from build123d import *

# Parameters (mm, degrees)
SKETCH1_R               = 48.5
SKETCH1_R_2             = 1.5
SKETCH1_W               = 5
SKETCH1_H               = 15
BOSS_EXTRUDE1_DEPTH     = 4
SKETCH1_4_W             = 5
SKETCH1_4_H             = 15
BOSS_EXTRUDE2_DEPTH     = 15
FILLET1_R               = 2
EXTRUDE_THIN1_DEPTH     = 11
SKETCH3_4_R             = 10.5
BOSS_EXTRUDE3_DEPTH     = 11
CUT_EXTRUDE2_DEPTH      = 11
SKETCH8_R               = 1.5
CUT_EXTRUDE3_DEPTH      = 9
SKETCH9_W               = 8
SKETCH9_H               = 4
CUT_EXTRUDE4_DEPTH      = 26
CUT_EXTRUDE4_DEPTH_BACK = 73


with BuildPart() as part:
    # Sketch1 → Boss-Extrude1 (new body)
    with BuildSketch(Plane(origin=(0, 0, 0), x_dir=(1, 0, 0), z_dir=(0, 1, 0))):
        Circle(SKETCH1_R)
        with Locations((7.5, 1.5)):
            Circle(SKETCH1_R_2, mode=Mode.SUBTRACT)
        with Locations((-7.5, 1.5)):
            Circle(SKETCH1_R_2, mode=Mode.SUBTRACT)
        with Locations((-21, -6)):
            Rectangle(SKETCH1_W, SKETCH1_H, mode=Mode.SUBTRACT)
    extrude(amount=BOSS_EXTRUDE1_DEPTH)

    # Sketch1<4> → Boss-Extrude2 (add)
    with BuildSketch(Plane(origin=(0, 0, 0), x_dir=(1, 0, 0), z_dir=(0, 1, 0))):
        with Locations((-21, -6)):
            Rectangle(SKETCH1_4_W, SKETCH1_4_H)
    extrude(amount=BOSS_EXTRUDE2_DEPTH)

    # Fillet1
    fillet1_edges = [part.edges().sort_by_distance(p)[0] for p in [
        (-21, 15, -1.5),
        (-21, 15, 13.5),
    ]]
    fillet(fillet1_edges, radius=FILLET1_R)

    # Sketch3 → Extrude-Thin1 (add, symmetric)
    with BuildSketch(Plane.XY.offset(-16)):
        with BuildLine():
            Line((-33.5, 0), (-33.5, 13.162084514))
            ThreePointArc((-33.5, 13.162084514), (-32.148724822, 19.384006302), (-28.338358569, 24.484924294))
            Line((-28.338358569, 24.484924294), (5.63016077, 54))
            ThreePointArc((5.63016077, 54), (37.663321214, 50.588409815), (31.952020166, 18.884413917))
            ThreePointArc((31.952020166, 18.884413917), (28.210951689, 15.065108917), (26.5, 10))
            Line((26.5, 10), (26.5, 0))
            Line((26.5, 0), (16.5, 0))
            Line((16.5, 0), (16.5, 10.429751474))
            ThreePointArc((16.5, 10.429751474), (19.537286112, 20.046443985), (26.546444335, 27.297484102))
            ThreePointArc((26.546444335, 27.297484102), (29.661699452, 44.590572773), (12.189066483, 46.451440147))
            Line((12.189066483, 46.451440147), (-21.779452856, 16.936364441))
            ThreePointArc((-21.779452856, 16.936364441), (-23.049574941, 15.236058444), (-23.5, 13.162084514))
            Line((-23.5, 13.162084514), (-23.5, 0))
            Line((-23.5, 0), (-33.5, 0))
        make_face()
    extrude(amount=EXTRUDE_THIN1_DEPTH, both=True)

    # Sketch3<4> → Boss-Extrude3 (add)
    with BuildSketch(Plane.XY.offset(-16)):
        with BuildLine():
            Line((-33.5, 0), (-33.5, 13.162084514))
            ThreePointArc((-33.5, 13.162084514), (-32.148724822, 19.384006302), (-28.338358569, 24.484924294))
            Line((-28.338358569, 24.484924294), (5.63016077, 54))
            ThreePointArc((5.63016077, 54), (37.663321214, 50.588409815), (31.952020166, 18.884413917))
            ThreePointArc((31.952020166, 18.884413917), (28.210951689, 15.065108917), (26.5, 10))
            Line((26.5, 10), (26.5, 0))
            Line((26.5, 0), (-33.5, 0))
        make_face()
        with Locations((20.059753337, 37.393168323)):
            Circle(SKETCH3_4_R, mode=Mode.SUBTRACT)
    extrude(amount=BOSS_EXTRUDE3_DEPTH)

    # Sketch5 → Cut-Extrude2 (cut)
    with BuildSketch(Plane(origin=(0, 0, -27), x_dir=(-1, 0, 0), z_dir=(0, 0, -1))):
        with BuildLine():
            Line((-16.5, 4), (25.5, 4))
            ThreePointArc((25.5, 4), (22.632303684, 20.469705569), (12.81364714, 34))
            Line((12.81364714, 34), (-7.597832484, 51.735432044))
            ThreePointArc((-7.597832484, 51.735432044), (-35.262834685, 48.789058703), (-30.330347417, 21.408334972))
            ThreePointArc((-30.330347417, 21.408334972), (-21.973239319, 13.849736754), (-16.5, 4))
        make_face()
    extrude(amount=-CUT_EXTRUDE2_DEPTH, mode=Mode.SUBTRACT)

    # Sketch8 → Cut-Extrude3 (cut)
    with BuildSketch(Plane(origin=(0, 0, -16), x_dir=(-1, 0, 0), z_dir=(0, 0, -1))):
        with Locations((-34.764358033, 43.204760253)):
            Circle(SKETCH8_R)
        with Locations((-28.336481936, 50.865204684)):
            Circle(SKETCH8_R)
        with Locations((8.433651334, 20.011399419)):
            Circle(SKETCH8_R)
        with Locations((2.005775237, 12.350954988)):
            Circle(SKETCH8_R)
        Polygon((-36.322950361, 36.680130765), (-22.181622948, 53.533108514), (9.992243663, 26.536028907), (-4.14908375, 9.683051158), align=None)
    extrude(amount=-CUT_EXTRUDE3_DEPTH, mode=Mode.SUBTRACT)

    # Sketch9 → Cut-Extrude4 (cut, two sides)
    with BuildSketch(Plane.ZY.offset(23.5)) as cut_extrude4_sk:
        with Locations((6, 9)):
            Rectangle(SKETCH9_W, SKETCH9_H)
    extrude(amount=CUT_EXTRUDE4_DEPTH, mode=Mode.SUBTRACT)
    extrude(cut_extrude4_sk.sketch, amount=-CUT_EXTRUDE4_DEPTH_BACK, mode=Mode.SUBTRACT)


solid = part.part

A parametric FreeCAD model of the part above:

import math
import FreeCAD as App
import Part
import Sketcher

V = App.Vector
Q = App.Units.Quantity


def edges_at(feature, points):
    """Names of the edges that pass closest to the given points."""
    edges = feature.Shape.Edges
    near = lambda p: min(range(len(edges)), key=lambda i: edges[i].distToShape(Part.Vertex(*p))[0])
    return sorted({f"Edge{near(p) + 1}" for p in points})

doc = App.newDocument("Part")
params = doc.addObject("Spreadsheet::Sheet", "Params")
for row, (alias, value) in enumerate([
    ("sketch1_diameter", "97 mm"),
    ("sketch1_diameter2", "3 mm"),
    ("sketch1_width", "5 mm"),
    ("sketch1_height", "15 mm"),
    ("pad1_length", "4 mm"),
    ("sketch2_width", "5 mm"),
    ("sketch2_height", "15 mm"),
    ("pad2_length", "15 mm"),
    ("fillet_radius", "2 mm"),
    ("sketch3_radius", "5 mm"),
    ("sketch3_radius2", "12 mm"),
    ("sketch3_radius3", "22 mm"),
    ("sketch3_length", "45 mm"),
    ("pad3_length", "22 mm"),
    ("sketch4_diameter", "21 mm"),
    ("sketch4_radius", "12 mm"),
    ("sketch4_radius2", "22 mm"),
    ("sketch4_radius3", "15 mm"),
    ("sketch4_width", "60 mm"),
    ("pad4_length", "11 mm"),
    ("sketch5_radius", "19 mm"),
    ("sketch5_width", "42 mm"),
    ("pocket1_length", "11 mm"),
    ("sketch6_diameter", "3 mm"),
    ("sketch6_length", "22 mm"),
    ("sketch6_length2", "42 mm"),
    ("pocket2_length", "9 mm"),
    ("sketch7_width", "4 mm"),
    ("sketch7_height", "8 mm"),
], start=1):
    params.set(f"A{row}", alias)
    params.set(f"B{row}", "=" + value)
    params.setAlias(f"B{row}", alias)

body = doc.addObject("PartDesign::Body", "Body")

# Sketch on XZ plane
sketch1 = doc.addObject("Sketcher::SketchObject", "Sketch")
body.addObject(sketch1)
sketch1.AttachmentSupport = (doc.XZ_Plane, [""])
sketch1.MapMode = "FlatFace"
sketch1.addGeometry([
    Part.Circle(V(0, 0, 0), V(0, 0, 1), 48.5),  # 0
    Part.LineSegment(V(-18.5, 13.5, 0), V(-23.5, 13.5, 0)),  # 1
    Part.LineSegment(V(-23.5, 13.5, 0), V(-23.5, -1.5, 0)),  # 2
    Part.LineSegment(V(-23.5, -1.5, 0), V(-18.5, -1.5, 0)),  # 3
    Part.LineSegment(V(-18.5, -1.5, 0), V(-18.5, 13.5, 0)),  # 4
    Part.Circle(V(-7.5, -1.5, 0), V(0, 0, 1), 1.5),  # 5
    Part.Circle(V(7.5, -1.5, 0), V(0, 0, 1), 1.5),  # 6
], False)
sketch1.addConstraint([
    Sketcher.Constraint("Coincident", 1, 2, 2, 1),
    Sketcher.Constraint("Coincident", 2, 2, 3, 1),
    Sketcher.Constraint("Coincident", 3, 2, 4, 1),
    Sketcher.Constraint("Coincident", 4, 2, 1, 1),
    Sketcher.Constraint("Horizontal", 1),
    Sketcher.Constraint("Vertical", 2),
    Sketcher.Constraint("Horizontal", 3),
    Sketcher.Constraint("Vertical", 4),
    Sketcher.Constraint("Coincident", 0, 3, -1, 1),
    Sketcher.Constraint("Equal", 5, 6),
    Sketcher.Constraint("Symmetric", 5, 3, 6, 3, -2),
    Sketcher.Constraint("Horizontal", 6, 3, 2, 2),
    Sketcher.Constraint("Diameter", 0, Q("97 mm")),
    Sketcher.Constraint("Diameter", 5, Q("3 mm")),
    Sketcher.Constraint("DistanceX", 1, 2, 1, 1, Q("5 mm")),
    Sketcher.Constraint("DistanceY", 2, 2, 2, 1, Q("15 mm")),
    Sketcher.Constraint("DistanceX", 5, 3, 6, 3, Q("15 mm")),
    Sketcher.Constraint("DistanceX", 1, 2, 5, 3, Q("16 mm")),
    Sketcher.Constraint("DistanceY", 5, 3, -1, 1, Q("1.5 mm")),
])
sketch1.setExpression("Constraints[12]", "Params.sketch1_diameter")
sketch1.setExpression("Constraints[13]", "Params.sketch1_diameter2")
sketch1.setExpression("Constraints[14]", "Params.sketch1_width")
sketch1.setExpression("Constraints[15]", "Params.sketch1_height")
pad1 = doc.addObject("PartDesign::Pad", "Pad")
body.addObject(pad1)
pad1.Profile = sketch1
pad1.setExpression("Length", "Params.pad1_length")
pad1.Reversed = True

# Sketch on XZ plane
sketch2 = doc.addObject("Sketcher::SketchObject", "Sketch001")
body.addObject(sketch2)
sketch2.AttachmentSupport = (doc.XZ_Plane, [""])
sketch2.MapMode = "FlatFace"
sketch2.addGeometry([
    Part.LineSegment(V(-24, -2, 0), V(-24, 14, 0)),
    Part.LineSegment(V(-24, 14, 0), V(-18, 14, 0)),
    Part.LineSegment(V(-18, 14, 0), V(-18, -2, 0)),
    Part.LineSegment(V(-18, -2, 0), V(-24, -2, 0)),
], False)
sketch2.addConstraint([
    Sketcher.Constraint("Coincident", 0, 2, 1, 1),
    Sketcher.Constraint("Coincident", 1, 2, 2, 1),
    Sketcher.Constraint("Coincident", 2, 2, 3, 1),
    Sketcher.Constraint("Coincident", 3, 2, 0, 1),
    Sketcher.Constraint("Vertical", 0),
    Sketcher.Constraint("Horizontal", 1),
    Sketcher.Constraint("Vertical", 2),
    Sketcher.Constraint("Horizontal", 3),
    Sketcher.Constraint("DistanceX", 1, 1, 1, 2, Q("5 mm")),
    Sketcher.Constraint("DistanceY", 0, 1, 0, 2, Q("15 mm")),
    Sketcher.Constraint("DistanceX", 0, 2, -1, 1, Q("23.5 mm")),
    Sketcher.Constraint("DistanceY", -1, 1, 0, 2, Q("13.5 mm")),
])
sketch2.setExpression("Constraints[8]", "Params.sketch2_width")
sketch2.setExpression("Constraints[9]", "Params.sketch2_height")
pad2 = doc.addObject("PartDesign::Pad", "Pad001")
body.addObject(pad2)
pad2.Profile = sketch2
pad2.setExpression("Length", "Params.pad2_length")
pad2.Reversed = True
doc.recompute()

fillet = doc.addObject("PartDesign::Fillet", "Fillet")
body.addObject(fillet)
fillet.Base = (pad2, edges_at(pad2, [(-21, 15, -1.5), (-21, 15, 13.5)]))
fillet.setExpression("Radius", "Params.fillet_radius")

# Sketch on XY plane
sketch3 = doc.addObject("Sketcher::SketchObject", "Sketch002")
body.addObject(sketch3)
sketch3.AttachmentSupport = (doc.XY_Plane, [""])
sketch3.MapMode = "FlatFace"
sketch3.AttachmentOffset = App.Placement(V(0, 0, -16), App.Rotation())
sketch3.addGeometry([
    Part.LineSegment(V(-33.5, 13.2, 0), V(-33.5, 0, 0)),  # 0
    Part.LineSegment(V(-33.5, 0, 0), V(-23.5, 0, 0)),  # 1
    Part.LineSegment(V(-23.5, 0, 0), V(-23.5, 13.2, 0)),  # 2
    Part.ArcOfCircle(Part.Circle(V(-18.5, 13.2, 0), V(0, 0, 1), 5), math.radians(131), math.radians(180)),  # 3
    Part.LineSegment(V(-21.8, 16.9, 0), V(12.2, 46.5, 0)),  # 4
    Part.ArcOfCircle(Part.Circle(V(20.1, 37.4, 0), V(0, 0, 1), 12), math.radians(-57), math.radians(131)),  # 5
    Part.ArcOfCircle(Part.Circle(V(38.4, 8.8, 0), V(0, 0, 1), 22), math.radians(123), math.radians(176)),  # 6
    Part.LineSegment(V(16.5, 10.4, 0), V(16.5, 0, 0)),  # 7
    Part.LineSegment(V(16.5, 0, 0), V(26.5, 0, 0)),  # 8
    Part.LineSegment(V(26.5, 0, 0), V(26.5, 10, 0)),  # 9
    Part.ArcOfCircle(Part.Circle(V(38.4, 8.8, 0), V(0, 0, 1), 12), math.radians(123), math.radians(174)),  # 10
    Part.ArcOfCircle(Part.Circle(V(20.1, 37.4, 0), V(0, 0, 1), 22), math.radians(-57), math.radians(131)),  # 11
    Part.LineSegment(V(5.6, 54, 0), V(-28.3, 24.5, 0)),  # 12
    Part.ArcOfCircle(Part.Circle(V(-18.5, 13.2, 0), V(0, 0, 1), 15), math.radians(131), math.radians(180)),  # 13
], False)
sketch3.addConstraint([
    Sketcher.Constraint("Coincident", 0, 2, 1, 1),
    Sketcher.Constraint("Coincident", 1, 2, 2, 1),
    Sketcher.Constraint("Tangent", 2, 2, 3, 2),
    Sketcher.Constraint("Tangent", 3, 1, 4, 1),
    Sketcher.Constraint("Tangent", 4, 2, 5, 2),
    Sketcher.Constraint("Tangent", 5, 1, 6, 1),
    Sketcher.Constraint("Coincident", 6, 2, 7, 1),
    Sketcher.Constraint("Coincident", 7, 2, 8, 1),
    Sketcher.Constraint("Coincident", 8, 2, 9, 1),
    Sketcher.Constraint("Coincident", 9, 2, 10, 2),
    Sketcher.Constraint("Tangent", 10, 1, 11, 1),
    Sketcher.Constraint("Tangent", 11, 2, 12, 1),
    Sketcher.Constraint("Tangent", 12, 2, 13, 1),
    Sketcher.Constraint("Tangent", 13, 2, 0, 1),
    Sketcher.Constraint("Vertical", 0),
    Sketcher.Constraint("Horizontal", 1),
    Sketcher.Constraint("Vertical", 2),
    Sketcher.Constraint("Vertical", 7),
    Sketcher.Constraint("Horizontal", 8),
    Sketcher.Constraint("Vertical", 9),
    Sketcher.Constraint("Coincident", 10, 3, 6, 3),
    Sketcher.Constraint("Coincident", 11, 3, 5, 3),
    Sketcher.Constraint("Coincident", 13, 3, 3, 3),
    Sketcher.Constraint("Equal", 5, 10),
    Sketcher.Constraint("PointOnObject", 0, 2, -1),
    Sketcher.Constraint("PointOnObject", 7, 2, -1),
    Sketcher.Constraint("Parallel", 4, 12),
    Sketcher.Constraint("Equal", 1, 8),
    Sketcher.Constraint("Equal", 8, 9),
    Sketcher.Constraint("Radius", 3, Q("5 mm")),
    Sketcher.Constraint("Radius", 5, Q("12 mm")),
    Sketcher.Constraint("Radius", 6, Q("22 mm")),
    Sketcher.Constraint("Distance", 4, Q("45 mm")),
    Sketcher.Constraint("DistanceY", -1, 1, 11, 2, Q("54 mm")),
    Sketcher.Constraint("DistanceX", 13, 3, 7, 2, Q("35 mm")),
    Sketcher.Constraint("DistanceX", 3, 3, -1, 1, Q("18.5 mm")),
    Sketcher.Constraint("DistanceY", 7, 2, 7, 1, Q("10.429751 mm")),
])
sketch3.setExpression("Constraints[29]", "Params.sketch3_radius")
sketch3.setExpression("Constraints[30]", "Params.sketch3_radius2")
sketch3.setExpression("Constraints[31]", "Params.sketch3_radius3")
sketch3.setExpression("Constraints[32]", "Params.sketch3_length")
pad3 = doc.addObject("PartDesign::Pad", "Pad002")
body.addObject(pad3)
pad3.Profile = sketch3
pad3.setExpression("Length", "Params.pad3_length")
pad3.Midplane = True

# Sketch on XY plane
sketch4 = doc.addObject("Sketcher::SketchObject", "Sketch003")
body.addObject(sketch4)
sketch4.AttachmentSupport = (doc.XY_Plane, [""])
sketch4.MapMode = "FlatFace"
sketch4.AttachmentOffset = App.Placement(V(0, 0, -16), App.Rotation())
sketch4.addGeometry([
    Part.LineSegment(V(-34, 13, 0), V(-34, 0, 0)),  # 0
    Part.LineSegment(V(-34, 0, 0), V(26, 0, 0)),  # 1
    Part.LineSegment(V(26, 0, 0), V(26, 10, 0)),  # 2
    Part.ArcOfCircle(Part.Circle(V(38, 9, 0), V(0, 0, 1), 12), math.radians(123), math.radians(174)),  # 3
    Part.ArcOfCircle(Part.Circle(V(20, 37, 0), V(0, 0, 1), 22), math.radians(-57), math.radians(131)),  # 4
    Part.LineSegment(V(6, 54, 0), V(-28, 24, 0)),  # 5
    Part.ArcOfCircle(Part.Circle(V(-18, 13, 0), V(0, 0, 1), 15), math.radians(131), math.radians(180)),  # 6
    Part.Circle(V(20, 37, 0), V(0, 0, 1), 10),  # 7
], False)
sketch4.addConstraint([
    Sketcher.Constraint("Coincident", 0, 2, 1, 1),
    Sketcher.Constraint("Coincident", 1, 2, 2, 1),
    Sketcher.Constraint("Coincident", 2, 2, 3, 2),
    Sketcher.Constraint("Tangent", 3, 1, 4, 1),
    Sketcher.Constraint("Tangent", 4, 2, 5, 1),
    Sketcher.Constraint("Tangent", 5, 2, 6, 1),
    Sketcher.Constraint("Tangent", 6, 2, 0, 1),
    Sketcher.Constraint("Vertical", 0),
    Sketcher.Constraint("Horizontal", 1),
    Sketcher.Constraint("Vertical", 2),
    Sketcher.Constraint("Coincident", 7, 3, 4, 3),
    Sketcher.Constraint("PointOnObject", 0, 2, -1),
    Sketcher.Constraint("Diameter", 7, Q("21 mm")),
    Sketcher.Constraint("Radius", 3, Q("12 mm")),
    Sketcher.Constraint("Radius", 4, Q("22 mm")),
    Sketcher.Constraint("Radius", 6, Q("15 mm")),
    Sketcher.Constraint("DistanceX", 1, 1, 1, 2, Q("60 mm")),
    Sketcher.Constraint("DistanceY", 2, 1, 2, 2, Q("10 mm")),
    Sketcher.Constraint("Distance", 5, Q("45 mm")),
    Sketcher.Constraint("DistanceY", -1, 1, 4, 2, Q("54 mm")),
    Sketcher.Constraint("DistanceX", 6, 3, -1, 1, Q("18.5 mm")),
    Sketcher.Constraint("DistanceY", 0, 2, 0, 1, Q("13.162085 mm")),
])
sketch4.setExpression("Constraints[12]", "Params.sketch4_diameter")
sketch4.setExpression("Constraints[13]", "Params.sketch4_radius")
sketch4.setExpression("Constraints[14]", "Params.sketch4_radius2")
sketch4.setExpression("Constraints[15]", "Params.sketch4_radius3")
sketch4.setExpression("Constraints[16]", "Params.sketch4_width")
pad4 = doc.addObject("PartDesign::Pad", "Pad003")
body.addObject(pad4)
pad4.Profile = sketch4
pad4.setExpression("Length", "Params.pad4_length")

# Sketch on XY plane
sketch5 = doc.addObject("Sketcher::SketchObject", "Sketch004")
body.addObject(sketch5)
sketch5.AttachmentSupport = (doc.XY_Plane, [""])
sketch5.MapMode = "FlatFace"
sketch5.AttachmentOffset = App.Placement(V(0, 0, -27), App.Rotation())
sketch5.addGeometry([
    Part.LineSegment(V(16, 4, 0), V(-26, 4, 0)),  # 0
    Part.ArcOfCircle(Part.Circle(V(11, 6, 0), V(0, 0, 1), 37), math.radians(131), math.radians(183)),  # 1
    Part.LineSegment(V(-13, 34, 0), V(8, 52, 0)),  # 2
    Part.ArcOfCircle(Part.Circle(V(20, 37, 0), V(0, 0, 1), 19), math.radians(-57), math.radians(131)),  # 3
    Part.ArcOfCircle(Part.Circle(V(49, -8, 0), V(0, 0, 1), 34), math.radians(123), math.radians(160)),  # 4
], False)
sketch5.addConstraint([
    Sketcher.Constraint("Coincident", 0, 2, 1, 2),
    Sketcher.Constraint("Tangent", 1, 1, 2, 1),
    Sketcher.Constraint("Tangent", 2, 2, 3, 2),
    Sketcher.Constraint("Tangent", 3, 1, 4, 1),
    Sketcher.Constraint("Coincident", 4, 2, 0, 1),
    Sketcher.Constraint("Horizontal", 0),
    Sketcher.Constraint("Radius", 3, Q("19 mm")),
    Sketcher.Constraint("DistanceX", 0, 2, 0, 1, Q("42 mm")),
    Sketcher.Constraint("DistanceY", -1, 1, 0, 2, Q("4 mm")),
    Sketcher.Constraint("DistanceY", -1, 1, 1, 1, Q("34 mm")),
    Sketcher.Constraint("DistanceX", 0, 2, -1, 1, Q("25.5 mm")),
    Sketcher.Constraint("Radius", 4, Q("34.473669 mm")),
    Sketcher.Constraint("Radius", 1, Q("37.031653 mm")),
    Sketcher.Constraint("DistanceX", 1, 1, 3, 3, Q("32.8734 mm")),
    Sketcher.Constraint("DistanceY", 1, 3, 3, 1, Q("15.3619 mm")),
])
sketch5.setExpression("Constraints[6]", "Params.sketch5_radius")
sketch5.setExpression("Constraints[7]", "Params.sketch5_width")
pocket1 = doc.addObject("PartDesign::Pocket", "Pocket")
body.addObject(pocket1)
pocket1.Profile = sketch5
pocket1.setExpression("Length", "Params.pocket1_length")
pocket1.Reversed = True

# Sketch on XY plane
sketch6 = doc.addObject("Sketcher::SketchObject", "Sketch005")
body.addObject(sketch6)
sketch6.AttachmentSupport = (doc.XY_Plane, [""])
sketch6.MapMode = "FlatFace"
sketch6.AttachmentOffset = App.Placement(V(0, 0, -16), App.Rotation())
sketch6.addGeometry([
    Part.Circle(V(34.8, 43.2, 0), V(0, 0, 1), 1.5),  # 0
    Part.Circle(V(28.3, 50.9, 0), V(0, 0, 1), 1.5),  # 1
    Part.Circle(V(-8.4, 20, 0), V(0, 0, 1), 1.5),  # 2
    Part.Circle(V(-2, 12.4, 0), V(0, 0, 1), 1.5),  # 3
    Part.LineSegment(V(22.2, 53.5, 0), V(36.3, 36.7, 0)),  # 4
    Part.LineSegment(V(36.3, 36.7, 0), V(4.1, 9.7, 0)),  # 5
    Part.LineSegment(V(4.1, 9.7, 0), V(-10, 26.5, 0)),  # 6
    Part.LineSegment(V(-10, 26.5, 0), V(22.2, 53.5, 0)),  # 7
], False)
sketch6.addConstraint([
    Sketcher.Constraint("Coincident", 4, 2, 5, 1),
    Sketcher.Constraint("Coincident", 5, 2, 6, 1),
    Sketcher.Constraint("Coincident", 6, 2, 7, 1),
    Sketcher.Constraint("Coincident", 7, 2, 4, 1),
    Sketcher.Constraint("Equal", 0, 1),
    Sketcher.Constraint("Equal", 1, 2),
    Sketcher.Constraint("Equal", 2, 3),
    Sketcher.Constraint("Perpendicular", 4, 5),
    Sketcher.Constraint("Perpendicular", 5, 6),
    Sketcher.Constraint("Perpendicular", 6, 7),
    Sketcher.Constraint("Diameter", 0, Q("3 mm")),
    Sketcher.Constraint("Angle", 4, Q("-50 deg")),
    Sketcher.Constraint("Distance", 4, Q("22 mm")),
    Sketcher.Constraint("Distance", 5, Q("42 mm")),
    Sketcher.Constraint("DistanceY", -1, 1, 2, 3, Q("20.011399 mm")),
    Sketcher.Constraint("DistanceX", 2, 3, 4, 2, Q("44.756602 mm")),
    Sketcher.Constraint("DistanceX", 5, 2, 1, 3, Q("24.187398 mm")),
    Sketcher.Constraint("DistanceX", -1, 1, 0, 3, Q("34.764358 mm")),
    Sketcher.Constraint("DistanceY", -1, 1, 0, 3, Q("43.20476 mm")),
    Sketcher.Constraint("DistanceX", -1, 1, 1, 3, Q("28.336482 mm")),
    Sketcher.Constraint("DistanceY", -1, 1, 4, 2, Q("36.680131 mm")),
    Sketcher.Constraint("DistanceY", 3, 3, 1, 3, Q("38.51425 mm")),
    Sketcher.Constraint("DistanceX", 3, 3, 5, 2, Q("6.154859 mm")),
    Sketcher.Constraint("DistanceY", -1, 1, 1, 3, Q("50.865205 mm")),
])
sketch6.setExpression("Constraints[10]", "Params.sketch6_diameter")
sketch6.setExpression("Constraints[12]", "Params.sketch6_length")
sketch6.setExpression("Constraints[13]", "Params.sketch6_length2")
pocket2 = doc.addObject("PartDesign::Pocket", "Pocket001")
body.addObject(pocket2)
pocket2.Profile = sketch6
pocket2.setExpression("Length", "Params.pocket2_length")
pocket2.Reversed = True

# Sketch on YZ plane
sketch7 = doc.addObject("Sketcher::SketchObject", "Sketch006")
body.addObject(sketch7)
sketch7.AttachmentSupport = (doc.YZ_Plane, [""])
sketch7.MapMode = "FlatFace"
sketch7.AttachmentOffset = App.Placement(V(0, 0, -23.5), App.Rotation())
sketch7.addGeometry([
    Part.LineSegment(V(11, 2, 0), V(7, 2, 0)),
    Part.LineSegment(V(7, 2, 0), V(7, 10, 0)),
    Part.LineSegment(V(7, 10, 0), V(11, 10, 0)),
    Part.LineSegment(V(11, 10, 0), V(11, 2, 0)),
], False)
sketch7.addConstraint([
    Sketcher.Constraint("Coincident", 0, 2, 1, 1),
    Sketcher.Constraint("Coincident", 1, 2, 2, 1),
    Sketcher.Constraint("Coincident", 2, 2, 3, 1),
    Sketcher.Constraint("Coincident", 3, 2, 0, 1),
    Sketcher.Constraint("Horizontal", 0),
    Sketcher.Constraint("Vertical", 1),
    Sketcher.Constraint("Horizontal", 2),
    Sketcher.Constraint("Vertical", 3),
    Sketcher.Constraint("DistanceX", 0, 2, 0, 1, Q("4 mm")),
    Sketcher.Constraint("DistanceY", 1, 1, 1, 2, Q("8 mm")),
    Sketcher.Constraint("DistanceX", -1, 1, 0, 2, Q("7 mm")),
    Sketcher.Constraint("DistanceY", -1, 1, 0, 2, Q("2 mm")),
])
sketch7.setExpression("Constraints[8]", "Params.sketch7_width")
sketch7.setExpression("Constraints[9]", "Params.sketch7_height")
pocket3 = doc.addObject("PartDesign::Pocket", "Pocket002")
body.addObject(pocket3)
pocket3.Profile = sketch7
pocket3.Type = "ThroughAll"
pocket3.Midplane = True

doc.recompute()
